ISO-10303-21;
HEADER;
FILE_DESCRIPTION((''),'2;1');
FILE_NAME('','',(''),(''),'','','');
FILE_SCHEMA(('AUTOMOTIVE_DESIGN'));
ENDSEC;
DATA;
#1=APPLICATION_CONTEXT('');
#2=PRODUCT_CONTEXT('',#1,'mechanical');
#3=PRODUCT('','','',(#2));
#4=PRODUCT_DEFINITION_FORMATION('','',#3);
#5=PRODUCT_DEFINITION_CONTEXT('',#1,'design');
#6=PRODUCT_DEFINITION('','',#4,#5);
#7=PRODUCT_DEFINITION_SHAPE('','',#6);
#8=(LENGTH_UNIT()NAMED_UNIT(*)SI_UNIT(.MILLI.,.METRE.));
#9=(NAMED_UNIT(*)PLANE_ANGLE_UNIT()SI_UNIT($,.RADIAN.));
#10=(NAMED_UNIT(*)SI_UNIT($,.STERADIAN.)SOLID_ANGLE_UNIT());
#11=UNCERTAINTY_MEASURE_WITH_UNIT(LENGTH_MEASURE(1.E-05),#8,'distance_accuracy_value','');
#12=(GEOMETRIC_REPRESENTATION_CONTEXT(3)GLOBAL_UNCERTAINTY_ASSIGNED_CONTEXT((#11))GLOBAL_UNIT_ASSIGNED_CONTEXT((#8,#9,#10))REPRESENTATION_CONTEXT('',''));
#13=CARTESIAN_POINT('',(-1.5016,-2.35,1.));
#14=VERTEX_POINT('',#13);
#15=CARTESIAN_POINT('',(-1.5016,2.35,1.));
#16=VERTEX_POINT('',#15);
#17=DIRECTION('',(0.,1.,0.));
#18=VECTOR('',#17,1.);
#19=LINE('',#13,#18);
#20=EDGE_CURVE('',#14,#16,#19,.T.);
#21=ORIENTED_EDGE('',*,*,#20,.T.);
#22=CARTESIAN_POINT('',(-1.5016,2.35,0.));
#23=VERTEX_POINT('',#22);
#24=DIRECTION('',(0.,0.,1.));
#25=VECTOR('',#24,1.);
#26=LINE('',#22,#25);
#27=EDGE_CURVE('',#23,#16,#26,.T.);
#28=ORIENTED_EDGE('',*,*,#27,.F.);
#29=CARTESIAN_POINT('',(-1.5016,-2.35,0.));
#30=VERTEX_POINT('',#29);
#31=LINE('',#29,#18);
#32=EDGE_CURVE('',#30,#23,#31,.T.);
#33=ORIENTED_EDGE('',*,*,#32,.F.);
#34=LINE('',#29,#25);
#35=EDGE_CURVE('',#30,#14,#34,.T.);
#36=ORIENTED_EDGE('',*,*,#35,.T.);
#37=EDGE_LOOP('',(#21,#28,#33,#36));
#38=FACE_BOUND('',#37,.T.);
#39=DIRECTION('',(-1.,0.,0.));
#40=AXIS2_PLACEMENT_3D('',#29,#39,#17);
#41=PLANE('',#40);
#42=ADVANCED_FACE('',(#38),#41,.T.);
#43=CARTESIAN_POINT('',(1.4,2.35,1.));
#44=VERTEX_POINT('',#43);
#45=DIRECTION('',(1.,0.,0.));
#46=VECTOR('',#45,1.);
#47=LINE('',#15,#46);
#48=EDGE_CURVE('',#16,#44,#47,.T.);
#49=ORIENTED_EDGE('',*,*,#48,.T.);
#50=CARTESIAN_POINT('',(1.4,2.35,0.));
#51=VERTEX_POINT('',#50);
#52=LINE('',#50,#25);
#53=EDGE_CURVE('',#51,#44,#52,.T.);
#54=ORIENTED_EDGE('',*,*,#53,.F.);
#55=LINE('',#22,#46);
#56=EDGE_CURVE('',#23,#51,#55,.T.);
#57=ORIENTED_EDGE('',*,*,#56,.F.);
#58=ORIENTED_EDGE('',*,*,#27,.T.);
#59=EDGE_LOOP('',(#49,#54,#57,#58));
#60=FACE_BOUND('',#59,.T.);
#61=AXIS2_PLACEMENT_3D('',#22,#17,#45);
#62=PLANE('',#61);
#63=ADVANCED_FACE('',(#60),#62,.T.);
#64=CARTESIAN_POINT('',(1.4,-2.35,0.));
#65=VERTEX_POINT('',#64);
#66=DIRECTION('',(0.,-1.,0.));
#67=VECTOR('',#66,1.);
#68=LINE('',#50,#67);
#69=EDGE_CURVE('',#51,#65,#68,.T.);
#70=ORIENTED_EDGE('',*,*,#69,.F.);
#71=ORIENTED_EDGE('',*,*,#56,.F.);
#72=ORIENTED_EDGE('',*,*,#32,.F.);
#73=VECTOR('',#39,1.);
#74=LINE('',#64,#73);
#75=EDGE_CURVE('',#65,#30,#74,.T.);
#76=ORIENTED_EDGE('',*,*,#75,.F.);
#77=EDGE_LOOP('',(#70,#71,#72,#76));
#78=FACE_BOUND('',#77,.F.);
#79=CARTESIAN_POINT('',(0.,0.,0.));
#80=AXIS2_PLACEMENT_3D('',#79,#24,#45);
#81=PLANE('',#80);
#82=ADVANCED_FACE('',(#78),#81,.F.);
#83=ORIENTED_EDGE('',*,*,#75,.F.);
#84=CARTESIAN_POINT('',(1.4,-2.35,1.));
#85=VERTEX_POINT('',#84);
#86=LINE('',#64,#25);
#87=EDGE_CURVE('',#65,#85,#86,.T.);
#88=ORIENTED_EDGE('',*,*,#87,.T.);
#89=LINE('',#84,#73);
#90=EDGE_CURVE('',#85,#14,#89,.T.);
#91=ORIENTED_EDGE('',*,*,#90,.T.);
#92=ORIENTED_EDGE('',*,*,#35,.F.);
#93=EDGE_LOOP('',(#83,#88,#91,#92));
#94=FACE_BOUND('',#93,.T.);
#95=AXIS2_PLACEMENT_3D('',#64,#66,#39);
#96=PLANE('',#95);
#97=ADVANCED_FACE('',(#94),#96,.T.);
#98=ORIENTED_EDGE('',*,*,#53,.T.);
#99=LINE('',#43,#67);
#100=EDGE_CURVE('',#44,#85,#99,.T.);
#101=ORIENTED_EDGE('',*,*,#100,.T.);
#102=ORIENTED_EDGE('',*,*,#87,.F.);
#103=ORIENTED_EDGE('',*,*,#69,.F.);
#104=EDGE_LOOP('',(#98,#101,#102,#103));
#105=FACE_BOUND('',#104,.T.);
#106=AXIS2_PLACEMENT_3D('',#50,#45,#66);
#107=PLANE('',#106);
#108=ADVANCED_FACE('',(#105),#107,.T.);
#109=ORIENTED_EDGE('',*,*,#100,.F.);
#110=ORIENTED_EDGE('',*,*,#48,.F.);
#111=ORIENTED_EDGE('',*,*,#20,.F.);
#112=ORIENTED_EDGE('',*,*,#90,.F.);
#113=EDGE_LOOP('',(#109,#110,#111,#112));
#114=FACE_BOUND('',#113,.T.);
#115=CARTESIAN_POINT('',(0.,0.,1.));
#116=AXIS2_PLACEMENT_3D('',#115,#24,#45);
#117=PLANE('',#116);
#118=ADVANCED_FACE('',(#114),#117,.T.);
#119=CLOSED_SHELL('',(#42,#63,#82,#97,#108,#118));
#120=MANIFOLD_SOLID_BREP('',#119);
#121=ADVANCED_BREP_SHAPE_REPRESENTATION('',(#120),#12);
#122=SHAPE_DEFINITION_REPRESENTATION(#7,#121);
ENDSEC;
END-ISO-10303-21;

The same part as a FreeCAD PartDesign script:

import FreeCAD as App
import Part
import Sketcher

doc = App.newDocument("Part")
body = doc.addObject("PartDesign::Body", "Body")

# Sketch on XY plane
sketch1 = body.newObject("Sketcher::SketchObject", "Sketch")
sketch1.AttachmentSupport = (doc.getObject("XY_Plane"), [""])
sketch1.MapMode = "FlatFace"
sketch1.addGeometry([
    Part.LineSegment(App.Vector(1.4, 2.4, 0), App.Vector(-1.5, 2.4, 0)),
    Part.LineSegment(App.Vector(-1.5, 2.4, 0), App.Vector(-1.5, -2.4, 0)),
    Part.LineSegment(App.Vector(-1.5, -2.4, 0), App.Vector(1.4, -2.4, 0)),
    Part.LineSegment(App.Vector(1.4, -2.4, 0), App.Vector(1.4, 2.4, 0)),
], False)
sketch1.addConstraint([
    Sketcher.Constraint("Coincident", 0, 2, 1, 1),
    Sketcher.Constraint("Coincident", 1, 2, 2, 1),
    Sketcher.Constraint("Coincident", 2, 2, 3, 1),
    Sketcher.Constraint("Coincident", 3, 2, 0, 1),
    Sketcher.Constraint("Horizontal", 0),
    Sketcher.Constraint("Vertical", 1),
    Sketcher.Constraint("Horizontal", 2),
    Sketcher.Constraint("Vertical", 3),
    Sketcher.Constraint("DistanceY", 1, 2, 1, 1, 4.7),
    Sketcher.Constraint("DistanceX", -1, 1, 2, 2, 1.4),
    Sketcher.Constraint("DistanceY", -1, 1, 0, 2, 2.35),
    Sketcher.Constraint("DistanceX", 0, 2, 0, 1, 2.9016),
])
pad1 = body.newObject("PartDesign::Pad", "Pad")
pad1.Profile = sketch1
pad1.Length = 1

doc.recompute()
